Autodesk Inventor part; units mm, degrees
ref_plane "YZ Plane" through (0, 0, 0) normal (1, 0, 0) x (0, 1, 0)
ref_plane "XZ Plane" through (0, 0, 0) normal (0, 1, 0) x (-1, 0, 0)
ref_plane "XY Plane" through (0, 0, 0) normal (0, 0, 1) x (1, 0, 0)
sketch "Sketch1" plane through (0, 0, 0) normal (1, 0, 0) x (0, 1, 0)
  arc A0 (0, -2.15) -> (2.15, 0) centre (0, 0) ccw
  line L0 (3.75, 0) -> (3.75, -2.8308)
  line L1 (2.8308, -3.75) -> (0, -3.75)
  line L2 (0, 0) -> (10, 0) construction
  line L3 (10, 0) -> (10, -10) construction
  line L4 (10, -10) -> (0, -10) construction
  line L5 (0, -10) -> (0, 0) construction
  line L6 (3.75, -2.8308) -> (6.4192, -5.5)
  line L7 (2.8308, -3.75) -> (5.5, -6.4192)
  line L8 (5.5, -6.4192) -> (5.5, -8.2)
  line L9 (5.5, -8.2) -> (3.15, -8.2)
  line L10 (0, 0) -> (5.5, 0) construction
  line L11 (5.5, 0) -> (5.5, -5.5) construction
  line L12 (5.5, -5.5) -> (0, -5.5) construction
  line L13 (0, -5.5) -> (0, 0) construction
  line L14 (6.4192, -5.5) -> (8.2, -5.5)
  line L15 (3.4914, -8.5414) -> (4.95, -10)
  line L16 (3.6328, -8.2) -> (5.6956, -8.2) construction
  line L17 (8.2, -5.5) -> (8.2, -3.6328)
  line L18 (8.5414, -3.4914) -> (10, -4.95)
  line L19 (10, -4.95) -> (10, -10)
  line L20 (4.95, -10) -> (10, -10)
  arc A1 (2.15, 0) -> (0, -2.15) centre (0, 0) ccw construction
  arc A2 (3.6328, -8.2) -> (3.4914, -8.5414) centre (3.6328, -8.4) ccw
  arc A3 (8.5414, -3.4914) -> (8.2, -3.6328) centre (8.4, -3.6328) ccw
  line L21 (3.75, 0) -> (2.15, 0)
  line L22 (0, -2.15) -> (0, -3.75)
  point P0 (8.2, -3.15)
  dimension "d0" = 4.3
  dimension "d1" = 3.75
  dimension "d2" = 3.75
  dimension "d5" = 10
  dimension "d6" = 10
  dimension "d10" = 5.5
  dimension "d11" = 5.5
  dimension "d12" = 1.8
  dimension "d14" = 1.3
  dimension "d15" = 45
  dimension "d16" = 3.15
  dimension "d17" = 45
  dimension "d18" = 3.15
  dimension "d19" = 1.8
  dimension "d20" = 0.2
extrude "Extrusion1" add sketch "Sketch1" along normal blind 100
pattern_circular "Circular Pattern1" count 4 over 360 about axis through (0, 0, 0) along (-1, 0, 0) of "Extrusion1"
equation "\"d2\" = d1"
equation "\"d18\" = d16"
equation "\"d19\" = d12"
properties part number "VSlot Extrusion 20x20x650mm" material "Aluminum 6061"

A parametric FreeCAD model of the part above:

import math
import FreeCAD as App
import Part
import Sketcher
from FreeCAD import Vector

doc = App.newDocument("Part")
body = doc.addObject("PartDesign::Body", "Body")

# Sketch on YZ plane
sketch1 = body.newObject("Sketcher::SketchObject", "Sketch")
sketch1.AttachmentSupport = (doc.getObject("YZ_Plane"), [""])
sketch1.MapMode = "FlatFace"
sketch1.addGeometry(Part.ArcOfCircle(Part.Circle(Vector(0, 0, 0), Vector(0, 0, 1), 2.15), math.radians(-90), math.radians(0)), False)
sketch1.addGeometry(Part.LineSegment(Vector(0, -2.15, 0), Vector(0, -3.75, 0)), False)
sketch1.addGeometry(Part.LineSegment(Vector(0, -3.75, 0), Vector(2.83, -3.75, 0)), False)
sketch1.addGeometry(Part.LineSegment(Vector(2.83, -3.75, 0), Vector(5.5, -6.42, 0)), False)
sketch1.addGeometry(Part.LineSegment(Vector(5.5, -6.42, 0), Vector(5.5, -8.2, 0)), False)
sketch1.addGeometry(Part.LineSegment(Vector(5.5, -8.2, 0), Vector(3.63, -8.2, 0)), False)
sketch1.addGeometry(Part.ArcOfCircle(Part.Circle(Vector(3.63, -8.4, 0), Vector(0, 0, 1), 0.2), math.radians(90), math.radians(225)), False)
sketch1.addGeometry(Part.LineSegment(Vector(3.49, -8.54, 0), Vector(4.95, -10, 0)), False)
sketch1.addGeometry(Part.LineSegment(Vector(4.95, -10, 0), Vector(10, -10, 0)), False)
sketch1.addGeometry(Part.LineSegment(Vector(10, -10, 0), Vector(10, -4.95, 0)), False)
sketch1.addGeometry(Part.LineSegment(Vector(10, -4.95, 0), Vector(8.54, -3.49, 0)), False)
sketch1.addGeometry(Part.ArcOfCircle(Part.Circle(Vector(8.4, -3.63, 0), Vector(0, 0, 1), 0.2), math.radians(45), math.radians(180)), False)
sketch1.addGeometry(Part.LineSegment(Vector(8.2, -3.63, 0), Vector(8.2, -5.5, 0)), False)
sketch1.addGeometry(Part.LineSegment(Vector(8.2, -5.5, 0), Vector(6.42, -5.5, 0)), False)
sketch1.addGeometry(Part.LineSegment(Vector(6.42, -5.5, 0), Vector(3.75, -2.83, 0)), False)
sketch1.addGeometry(Part.LineSegment(Vector(3.75, -2.83, 0), Vector(3.75, 0, 0)), False)
sketch1.addGeometry(Part.LineSegment(Vector(3.75, 0, 0), Vector(2.15, 0, 0)), False)
sketch1.addConstraint(Sketcher.Constraint("Coincident", 0, 1, 1, 1))
sketch1.addConstraint(Sketcher.Constraint("Coincident", 1, 2, 2, 1))
sketch1.addConstraint(Sketcher.Constraint("Coincident", 2, 2, 3, 1))
sketch1.addConstraint(Sketcher.Constraint("Coincident", 3, 2, 4, 1))
sketch1.addConstraint(Sketcher.Constraint("Coincident", 4, 2, 5, 1))
sketch1.addConstraint(Sketcher.Constraint("Tangent", 5, 2, 6, 1))
sketch1.addConstraint(Sketcher.Constraint("Tangent", 6, 2, 7, 1))
sketch1.addConstraint(Sketcher.Constraint("Coincident", 7, 2, 8, 1))
sketch1.addConstraint(Sketcher.Constraint("Coincident", 8, 2, 9, 1))
sketch1.addConstraint(Sketcher.Constraint("Coincident", 9, 2, 10, 1))
sketch1.addConstraint(Sketcher.Constraint("Tangent", 10, 2, 11, 1))
sketch1.addConstraint(Sketcher.Constraint("Tangent", 11, 2, 12, 1))
sketch1.addConstraint(Sketcher.Constraint("Coincident", 12, 2, 13, 1))
sketch1.addConstraint(Sketcher.Constraint("Coincident", 13, 2, 14, 1))
sketch1.addConstraint(Sketcher.Constraint("Coincident", 14, 2, 15, 1))
sketch1.addConstraint(Sketcher.Constraint("Coincident", 15, 2, 16, 1))
sketch1.addConstraint(Sketcher.Constraint("Coincident", 16, 2, 0, 2))
sketch1.addConstraint(Sketcher.Constraint("Vertical", 1))
sketch1.addConstraint(Sketcher.Constraint("Horizontal", 2))
sketch1.addConstraint(Sketcher.Constraint("Vertical", 4))
sketch1.addConstraint(Sketcher.Constraint("Horizontal", 5))
sketch1.addConstraint(Sketcher.Constraint("Horizontal", 8))
sketch1.addConstraint(Sketcher.Constraint("Vertical", 9))
sketch1.addConstraint(Sketcher.Constraint("Vertical", 12))
sketch1.addConstraint(Sketcher.Constraint("Horizontal", 13))
sketch1.addConstraint(Sketcher.Constraint("Vertical", 15))
sketch1.addConstraint(Sketcher.Constraint("Horizontal", 16))
sketch1.addConstraint(Sketcher.Constraint("Coincident", 0, 3, -1, 1))
sketch1.addConstraint(Sketcher.Constraint("Equal", 6, 11))
sketch1.addConstraint(Sketcher.Constraint("PointOnObject", 0, 1, -2))
sketch1.addConstraint(Sketcher.Constraint("PointOnObject", 15, 2, -1))
sketch1.addConstraint(Sketcher.Constraint("Parallel", 3, 7))
sketch1.addConstraint(Sketcher.Constraint("Parallel", 7, 10))
sketch1.addConstraint(Sketcher.Constraint("Parallel", 10, 14))
sketch1.addConstraint(Sketcher.Constraint("Equal", 16, 1))
sketch1.addConstraint(Sketcher.Constraint("Equal", 13, 4))
sketch1.addConstraint(Sketcher.Constraint("Equal", 8, 9))
sketch1.addConstraint(Sketcher.Constraint("Equal", 5, 12))
sketch1.addConstraint(Sketcher.Constraint("Equal", 2, 15))
sketch1.addConstraint(Sketcher.Constraint("Equal", 7, 10))
sketch1.addConstraint(Sketcher.Constraint("Equal", 3, 14))
sketch1.addConstraint(Sketcher.Constraint("Radius", 6, 0.2))
sketch1.addConstraint(Sketcher.Constraint("Radius", 0, 2.15))
sketch1.addConstraint(Sketcher.Constraint("DistanceY", 7, 2, -1, 1, 10.0))
sketch1.addConstraint(Sketcher.Constraint("DistanceX", -1, 1, 3, 2, 5.5))
sketch1.addConstraint(Sketcher.Constraint("DistanceY", 7, 2, 4, 2, 1.8))
sketch1.addConstraint(Sketcher.Constraint("DistanceY", 1, 2, -1, 1, 3.75))
sketch1.addConstraint(Sketcher.Constraint("DistanceX", 8, 1, 8, 2, 5.05))
sketch1.addConstraint(Sketcher.Constraint("DistanceX", 2, 1, 2, 2, 2.8308))
pad1 = body.newObject("PartDesign::Pad", "Pad")
pad1.Profile = sketch1
pad1.Length = 100
doc.recompute()

polarpattern = body.newObject("PartDesign::PolarPattern", "PolarPattern")
polarpattern.Originals = [pad1]
polarpattern.Axis = (doc.getObject("X_Axis"), [""])
polarpattern.Angle = 360
polarpattern.Occurrences = 4
body.Tip = polarpattern

doc.recompute()
